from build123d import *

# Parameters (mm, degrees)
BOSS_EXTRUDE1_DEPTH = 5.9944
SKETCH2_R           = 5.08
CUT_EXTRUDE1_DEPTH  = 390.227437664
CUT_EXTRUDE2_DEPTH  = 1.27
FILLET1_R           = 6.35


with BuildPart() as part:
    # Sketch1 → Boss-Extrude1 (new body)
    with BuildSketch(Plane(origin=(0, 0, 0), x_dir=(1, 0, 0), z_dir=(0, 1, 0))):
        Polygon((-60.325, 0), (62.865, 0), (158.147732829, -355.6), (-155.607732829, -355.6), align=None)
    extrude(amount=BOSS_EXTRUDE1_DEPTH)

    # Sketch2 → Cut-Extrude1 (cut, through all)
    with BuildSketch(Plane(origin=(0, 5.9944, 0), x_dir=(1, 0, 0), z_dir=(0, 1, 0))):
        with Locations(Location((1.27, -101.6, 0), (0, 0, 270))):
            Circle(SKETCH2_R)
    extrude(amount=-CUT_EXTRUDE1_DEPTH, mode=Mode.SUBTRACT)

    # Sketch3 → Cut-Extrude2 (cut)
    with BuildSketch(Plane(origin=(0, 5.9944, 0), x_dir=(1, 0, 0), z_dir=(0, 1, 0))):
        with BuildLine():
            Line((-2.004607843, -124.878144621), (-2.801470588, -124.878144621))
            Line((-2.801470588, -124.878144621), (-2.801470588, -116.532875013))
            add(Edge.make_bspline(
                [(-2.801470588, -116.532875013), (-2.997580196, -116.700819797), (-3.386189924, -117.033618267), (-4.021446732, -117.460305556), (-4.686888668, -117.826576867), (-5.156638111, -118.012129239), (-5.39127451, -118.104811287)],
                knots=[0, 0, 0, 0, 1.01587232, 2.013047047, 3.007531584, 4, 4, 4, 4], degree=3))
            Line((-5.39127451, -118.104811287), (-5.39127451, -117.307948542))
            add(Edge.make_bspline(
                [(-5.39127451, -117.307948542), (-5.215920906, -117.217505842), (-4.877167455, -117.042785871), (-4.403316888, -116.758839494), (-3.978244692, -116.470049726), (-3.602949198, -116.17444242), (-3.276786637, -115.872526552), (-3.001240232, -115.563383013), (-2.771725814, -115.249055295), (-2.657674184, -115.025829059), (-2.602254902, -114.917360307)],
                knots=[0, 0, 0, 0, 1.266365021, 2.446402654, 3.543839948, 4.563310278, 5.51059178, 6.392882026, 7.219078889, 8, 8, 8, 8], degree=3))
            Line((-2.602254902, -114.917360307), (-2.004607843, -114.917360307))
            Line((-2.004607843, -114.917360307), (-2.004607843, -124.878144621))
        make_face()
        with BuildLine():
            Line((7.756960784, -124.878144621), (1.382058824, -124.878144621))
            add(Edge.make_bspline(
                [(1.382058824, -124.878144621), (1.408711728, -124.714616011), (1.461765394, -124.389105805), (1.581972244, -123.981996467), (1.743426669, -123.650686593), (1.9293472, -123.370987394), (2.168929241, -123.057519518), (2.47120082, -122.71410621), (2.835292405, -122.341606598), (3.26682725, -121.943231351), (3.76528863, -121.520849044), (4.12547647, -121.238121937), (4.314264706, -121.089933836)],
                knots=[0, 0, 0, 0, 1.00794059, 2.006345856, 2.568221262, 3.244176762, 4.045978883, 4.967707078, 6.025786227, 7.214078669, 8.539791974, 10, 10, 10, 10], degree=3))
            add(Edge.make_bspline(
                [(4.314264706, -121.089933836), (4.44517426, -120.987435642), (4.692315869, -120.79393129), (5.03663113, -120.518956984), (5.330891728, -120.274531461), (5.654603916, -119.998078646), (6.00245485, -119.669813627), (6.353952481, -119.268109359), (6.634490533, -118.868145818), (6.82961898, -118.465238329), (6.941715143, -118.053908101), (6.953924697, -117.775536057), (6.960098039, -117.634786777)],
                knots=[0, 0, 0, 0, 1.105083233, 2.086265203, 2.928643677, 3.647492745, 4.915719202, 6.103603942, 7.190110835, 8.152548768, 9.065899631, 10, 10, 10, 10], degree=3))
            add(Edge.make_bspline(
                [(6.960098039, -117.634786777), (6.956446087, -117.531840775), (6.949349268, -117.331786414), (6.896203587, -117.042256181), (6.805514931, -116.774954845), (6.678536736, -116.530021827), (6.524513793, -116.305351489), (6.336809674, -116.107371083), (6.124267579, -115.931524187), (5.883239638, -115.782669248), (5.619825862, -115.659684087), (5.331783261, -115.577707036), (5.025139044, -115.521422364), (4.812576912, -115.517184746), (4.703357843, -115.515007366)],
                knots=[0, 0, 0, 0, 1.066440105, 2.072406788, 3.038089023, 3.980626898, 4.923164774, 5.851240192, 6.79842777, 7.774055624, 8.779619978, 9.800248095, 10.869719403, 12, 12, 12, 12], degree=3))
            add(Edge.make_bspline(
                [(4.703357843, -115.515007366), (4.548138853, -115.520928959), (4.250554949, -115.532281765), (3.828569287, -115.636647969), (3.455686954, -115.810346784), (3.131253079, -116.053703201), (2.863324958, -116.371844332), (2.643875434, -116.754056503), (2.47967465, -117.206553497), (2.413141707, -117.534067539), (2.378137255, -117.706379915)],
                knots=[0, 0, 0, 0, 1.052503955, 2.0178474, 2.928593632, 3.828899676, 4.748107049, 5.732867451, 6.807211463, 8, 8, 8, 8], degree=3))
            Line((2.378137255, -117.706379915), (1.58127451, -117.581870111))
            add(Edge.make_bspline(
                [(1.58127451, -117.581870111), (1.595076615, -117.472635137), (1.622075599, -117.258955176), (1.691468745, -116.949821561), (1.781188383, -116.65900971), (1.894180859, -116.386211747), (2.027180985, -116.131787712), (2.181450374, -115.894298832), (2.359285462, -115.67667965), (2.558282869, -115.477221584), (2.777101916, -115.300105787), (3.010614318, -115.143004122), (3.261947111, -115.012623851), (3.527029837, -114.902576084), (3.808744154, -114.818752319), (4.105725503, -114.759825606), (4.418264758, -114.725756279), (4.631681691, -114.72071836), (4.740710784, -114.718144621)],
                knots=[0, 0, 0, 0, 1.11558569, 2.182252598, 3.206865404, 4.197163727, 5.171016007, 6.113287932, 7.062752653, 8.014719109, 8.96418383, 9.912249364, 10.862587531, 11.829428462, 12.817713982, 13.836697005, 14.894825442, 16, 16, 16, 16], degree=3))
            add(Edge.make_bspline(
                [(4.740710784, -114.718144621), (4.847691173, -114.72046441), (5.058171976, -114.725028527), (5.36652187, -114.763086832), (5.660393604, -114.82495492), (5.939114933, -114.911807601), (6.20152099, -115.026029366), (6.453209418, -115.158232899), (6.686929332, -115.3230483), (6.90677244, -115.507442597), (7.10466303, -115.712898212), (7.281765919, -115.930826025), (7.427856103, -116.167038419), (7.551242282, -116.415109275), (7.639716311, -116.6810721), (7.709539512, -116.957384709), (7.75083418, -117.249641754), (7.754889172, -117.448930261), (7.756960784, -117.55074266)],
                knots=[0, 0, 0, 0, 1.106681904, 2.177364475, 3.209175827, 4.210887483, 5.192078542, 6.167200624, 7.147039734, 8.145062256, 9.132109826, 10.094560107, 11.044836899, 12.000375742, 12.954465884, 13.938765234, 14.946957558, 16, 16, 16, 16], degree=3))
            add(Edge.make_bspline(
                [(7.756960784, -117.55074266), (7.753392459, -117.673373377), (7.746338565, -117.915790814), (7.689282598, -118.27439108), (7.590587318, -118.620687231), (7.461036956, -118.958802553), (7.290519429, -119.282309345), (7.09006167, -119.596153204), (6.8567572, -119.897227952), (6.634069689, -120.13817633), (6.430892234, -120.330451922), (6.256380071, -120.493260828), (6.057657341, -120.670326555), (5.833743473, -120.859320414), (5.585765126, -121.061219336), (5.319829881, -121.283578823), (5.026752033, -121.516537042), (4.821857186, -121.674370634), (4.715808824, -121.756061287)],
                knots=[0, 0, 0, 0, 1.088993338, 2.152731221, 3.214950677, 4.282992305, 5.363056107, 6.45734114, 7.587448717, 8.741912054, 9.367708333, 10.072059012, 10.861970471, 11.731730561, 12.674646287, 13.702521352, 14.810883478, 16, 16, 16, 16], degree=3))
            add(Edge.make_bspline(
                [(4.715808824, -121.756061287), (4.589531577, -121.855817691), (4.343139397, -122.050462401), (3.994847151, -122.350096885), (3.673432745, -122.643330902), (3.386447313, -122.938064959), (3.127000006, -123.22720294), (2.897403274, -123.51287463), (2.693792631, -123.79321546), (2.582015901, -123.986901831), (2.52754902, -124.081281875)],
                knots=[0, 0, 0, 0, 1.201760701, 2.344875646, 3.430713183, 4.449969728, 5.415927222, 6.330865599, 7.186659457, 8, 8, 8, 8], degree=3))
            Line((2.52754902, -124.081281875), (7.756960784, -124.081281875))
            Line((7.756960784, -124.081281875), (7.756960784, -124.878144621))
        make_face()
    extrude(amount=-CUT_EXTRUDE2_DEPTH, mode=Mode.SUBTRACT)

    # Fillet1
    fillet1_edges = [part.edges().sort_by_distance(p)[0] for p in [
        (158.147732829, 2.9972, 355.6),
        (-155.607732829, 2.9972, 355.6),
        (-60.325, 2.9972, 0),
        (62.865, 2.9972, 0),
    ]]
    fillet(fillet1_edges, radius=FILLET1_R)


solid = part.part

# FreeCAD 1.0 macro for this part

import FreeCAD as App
import Part
import Sketcher
from FreeCAD import Vector
Q = App.Units.Quantity


def edges_at(feature, points):
    """Names of the edges that pass closest to the given points."""
    edges = feature.Shape.Edges
    near = lambda p: min(range(len(edges)), key=lambda i: edges[i].distToShape(Part.Vertex(*p))[0])
    return sorted({f"Edge{near(p) + 1}" for p in points})

doc = App.newDocument("Part")
body = doc.addObject("PartDesign::Body", "Body")

sketch1 = doc.addObject("Sketcher::SketchObject", "Sketch")
body.addObject(sketch1)
sketch1.AttachmentSupport = (doc.XZ_Plane, [""])
sketch1.MapMode = "FlatFace"
sketch1.addGeometry([
    Part.LineSegment(Vector(62.865, 0, 0), Vector(-60.325, 0, 0)),
    Part.LineSegment(Vector(-60.325, 0, 0), Vector(-155.607733, 355.6, 0)),
    Part.LineSegment(Vector(-155.607733, 355.6, 0), Vector(158.147733, 355.6, 0)),
    Part.LineSegment(Vector(158.147733, 355.6, 0), Vector(62.865, 0, 0)),
], False)
sketch1.addConstraint([
    Sketcher.Constraint("Coincident", 0, 2, 1, 1),
    Sketcher.Constraint("Coincident", 1, 2, 2, 1),
    Sketcher.Constraint("Coincident", 2, 2, 3, 1),
    Sketcher.Constraint("Coincident", 3, 2, 0, 1),
    Sketcher.Constraint("Horizontal", 0),
    Sketcher.Constraint("Horizontal", 2),
    Sketcher.Constraint("PointOnObject", 0, 2, -1),
    Sketcher.Constraint("Equal", 1, 3),
    Sketcher.Constraint("DistanceY", -1, 1, 1, 2, Q("14 in")),
    Sketcher.Constraint("Angle", 1, Q("105 deg")),
    Sketcher.Constraint("DistanceX", 0, 2, 0, 1, Q("4.85 in")),
    Sketcher.Constraint("DistanceX", 0, 2, -1, 1, Q("2.375 in")),
])
pad1 = doc.addObject("PartDesign::Pad", "Pad")
body.addObject(pad1)
pad1.Profile = sketch1
pad1.Length = Q("0.236 in")
pad1.Reversed = True

sketch2 = doc.addObject("Sketcher::SketchObject", "Sketch001")
body.addObject(sketch2)
sketch2.AttachmentSupport = (doc.XZ_Plane, [""])
sketch2.MapMode = "FlatFace"
sketch2.AttachmentOffset = App.Placement(Vector(0, 0, -0.236 * 25.4), App.Rotation())
sketch2.addGeometry(Part.Circle(Vector(1.27, 101.6, 0), Vector(0, 0, 1), 5.08), False)
sketch2.addConstraint([
    Sketcher.Constraint("Diameter", 0, Q("0.4 in")),
    Sketcher.Constraint("DistanceY", -1, 1, 0, 3, Q("4 in")),
    Sketcher.Constraint("DistanceX", -1, 1, 0, 3, Q("0.05 in")),
])
pocket1 = doc.addObject("PartDesign::Pocket", "Pocket")
body.addObject(pocket1)
pocket1.Profile = sketch2
pocket1.Type = "ThroughAll"
pocket1.Reversed = True

sketch3 = doc.addObject("Sketcher::SketchObject", "Sketch002")
body.addObject(sketch3)
sketch3.AttachmentSupport = (doc.XZ_Plane, [""])
sketch3.MapMode = "FlatFace"
sketch3.AttachmentOffset = App.Placement(Vector(0, 0, -0.236 * 25.4), App.Rotation())
sketch3.addGeometry([
    Part.LineSegment(Vector(-2.801471, 124.878145, 0), Vector(-2.004608, 124.878145, 0)),
    Part.LineSegment(Vector(-2.004608, 124.878145, 0), Vector(-2.004608, 114.91736, 0)),
    Part.LineSegment(Vector(-2.004608, 114.91736, 0), Vector(-2.602255, 114.91736, 0)),
    Part.BSplineCurve([Vector(-5.391275, 117.307949, 0), Vector(-5.215921, 117.217506, 0), Vector(-4.877167, 117.042786, 0), Vector(-4.403317, 116.758839, 0), Vector(-3.978245, 116.47005, 0), Vector(-3.602949, 116.174442, 0), Vector(-3.276787, 115.872527, 0), Vector(-3.00124, 115.563383, 0), Vector(-2.771726, 115.249055, 0), Vector(-2.657674, 115.025829, 0), Vector(-2.602255, 114.91736, 0)], [4, 1, 1, 1, 1, 1, 1, 1, 4], [0, 1.266365021, 2.446402654, 3.543839948, 4.563310278, 5.51059178, 6.392882026, 7.219078889, 8], False, 3, [1, 1, 1, 1, 1, 1, 1, 1, 1, 1, 1], False),
    Part.LineSegment(Vector(-5.391275, 117.307949, 0), Vector(-5.391275, 118.104811, 0)),
    Part.BSplineCurve([Vector(-2.801471, 116.532875, 0), Vector(-2.99758, 116.70082, 0), Vector(-3.38619, 117.033618, 0), Vector(-4.021447, 117.460306, 0), Vector(-4.686889, 117.826577, 0), Vector(-5.156638, 118.012129, 0), Vector(-5.391275, 118.104811, 0)], [4, 1, 1, 1, 4], [0, 1.01587232, 2.013047047, 3.007531584, 4], False, 3, [1, 1, 1, 1, 1, 1, 1], False),
    Part.LineSegment(Vector(-2.801471, 116.532875, 0), Vector(-2.801471, 124.878145, 0)),
    Part.LineSegment(Vector(1.382059, 124.878145, 0), Vector(7.756961, 124.878145, 0)),
    Part.LineSegment(Vector(7.756961, 124.878145, 0), Vector(7.756961, 124.081282, 0)),
    Part.LineSegment(Vector(7.756961, 124.081282, 0), Vector(2.527549, 124.081282, 0)),
    Part.BSplineCurve([Vector(4.715809, 121.756061, 0), Vector(4.589532, 121.855818, 0), Vector(4.343139, 122.050462, 0), Vector(3.994847, 122.350097, 0), Vector(3.673433, 122.643331, 0), Vector(3.386447, 122.938065, 0), Vector(3.127, 123.227203, 0), Vector(2.897403, 123.512875, 0), Vector(2.693793, 123.793215, 0), Vector(2.582016, 123.986902, 0), Vector(2.527549, 124.081282, 0)], [4, 1, 1, 1, 1, 1, 1, 1, 4], [0, 1.201760701, 2.344875646, 3.430713183, 4.449969728, 5.415927222, 6.330865599, 7.186659457, 8], False, 3, [1, 1, 1, 1, 1, 1, 1, 1, 1, 1, 1], False),
    Part.BSplineCurve([Vector(7.756961, 117.550743, 0), Vector(7.753392, 117.673373, 0), Vector(7.746339, 117.915791, 0), Vector(7.689283, 118.274391, 0), Vector(7.590587, 118.620687, 0), Vector(7.461037, 118.958803, 0), Vector(7.290519, 119.282309, 0), Vector(7.090062, 119.596153, 0), Vector(6.856757, 119.897228, 0), Vector(6.63407, 120.138176, 0), Vector(6.430892, 120.330452, 0), Vector(6.25638, 120.493261, 0), Vector(6.057657, 120.670327, 0), Vector(5.833743, 120.85932, 0), Vector(5.585765, 121.061219, 0), Vector(5.31983, 121.283579, 0), Vector(5.026752, 121.516537, 0), Vector(4.821857, 121.674371, 0), Vector(4.715809, 121.756061, 0)], [4, 1, 1, 1, 1, 1, 1, 1, 1, 1, 1, 1, 1, 1, 1, 1, 4], [0, 1.088993338, 2.152731221, 3.214950677, 4.282992305, 5.363056107, 6.45734114, 7.587448717, 8.741912054, 9.367708333, 10.072059012, 10.861970471, 11.731730561, 12.674646287, 13.702521352, 14.810883478, 16], False, 3, [1, 1, 1, 1, 1, 1, 1, 1, 1, 1, 1, 1, 1, 1, 1, 1, 1, 1, 1], False),
    Part.BSplineCurve([Vector(4.740711, 114.718145, 0), Vector(4.847691, 114.720464, 0), Vector(5.058172, 114.725029, 0), Vector(5.366522, 114.763087, 0), Vector(5.660394, 114.824955, 0), Vector(5.939115, 114.911808, 0), Vector(6.201521, 115.026029, 0), Vector(6.453209, 115.158233, 0), Vector(6.686929, 115.323048, 0), Vector(6.906772, 115.507443, 0), Vector(7.104663, 115.712898, 0), Vector(7.281766, 115.930826, 0), Vector(7.427856, 116.167038, 0), Vector(7.551242, 116.415109, 0), Vector(7.639716, 116.681072, 0), Vector(7.70954, 116.957385, 0), Vector(7.750834, 117.249642, 0), Vector(7.754889, 117.44893, 0), Vector(7.756961, 117.550743, 0)], [4, 1, 1, 1, 1, 1, 1, 1, 1, 1, 1, 1, 1, 1, 1, 1, 4], [0, 1.106681904, 2.177364475, 3.209175827, 4.210887483, 5.192078542, 6.167200624, 7.147039734, 8.145062256, 9.132109826, 10.094560107, 11.044836899, 12.000375742, 12.954465884, 13.938765234, 14.946957558, 16], False, 3, [1, 1, 1, 1, 1, 1, 1, 1, 1, 1, 1, 1, 1, 1, 1, 1, 1, 1, 1], False),
    Part.BSplineCurve([Vector(1.581275, 117.58187, 0), Vector(1.595077, 117.472635, 0), Vector(1.622076, 117.258955, 0), Vector(1.691469, 116.949822, 0), Vector(1.781188, 116.65901, 0), Vector(1.894181, 116.386212, 0), Vector(2.027181, 116.131788, 0), Vector(2.18145, 115.894299, 0), Vector(2.359285, 115.67668, 0), Vector(2.558283, 115.477222, 0), Vector(2.777102, 115.300106, 0), Vector(3.010614, 115.143004, 0), Vector(3.261947, 115.012624, 0), Vector(3.52703, 114.902576, 0), Vector(3.808744, 114.818752, 0), Vector(4.105726, 114.759826, 0), Vector(4.418265, 114.725756, 0), Vector(4.631682, 114.720718, 0), Vector(4.740711, 114.718145, 0)], [4, 1, 1, 1, 1, 1, 1, 1, 1, 1, 1, 1, 1, 1, 1, 1, 4], [0, 1.11558569, 2.182252598, 3.206865404, 4.197163727, 5.171016007, 6.113287932, 7.062752653, 8.014719109, 8.96418383, 9.912249364, 10.862587531, 11.829428462, 12.817713982, 13.836697005, 14.894825442, 16], False, 3, [1, 1, 1, 1, 1, 1, 1, 1, 1, 1, 1, 1, 1, 1, 1, 1, 1, 1, 1], False),
    Part.LineSegment(Vector(1.581275, 117.58187, 0), Vector(2.378137, 117.70638, 0)),
    Part.BSplineCurve([Vector(4.703358, 115.515007, 0), Vector(4.548139, 115.520929, 0), Vector(4.250555, 115.532282, 0), Vector(3.828569, 115.636648, 0), Vector(3.455687, 115.810347, 0), Vector(3.131253, 116.053703, 0), Vector(2.863325, 116.371844, 0), Vector(2.643875, 116.754057, 0), Vector(2.479675, 117.206553, 0), Vector(2.413142, 117.534068, 0), Vector(2.378137, 117.70638, 0)], [4, 1, 1, 1, 1, 1, 1, 1, 4], [0, 1.052503955, 2.0178474, 2.928593632, 3.828899676, 4.748107049, 5.732867451, 6.807211463, 8], False, 3, [1, 1, 1, 1, 1, 1, 1, 1, 1, 1, 1], False),
    Part.BSplineCurve([Vector(6.960098, 117.634787, 0), Vector(6.956446, 117.531841, 0), Vector(6.949349, 117.331786, 0), Vector(6.896204, 117.042256, 0), Vector(6.805515, 116.774955, 0), Vector(6.678537, 116.530022, 0), Vector(6.524514, 116.305351, 0), Vector(6.33681, 116.107371, 0), Vector(6.124268, 115.931524, 0), Vector(5.88324, 115.782669, 0), Vector(5.619826, 115.659684, 0), Vector(5.331783, 115.577707, 0), Vector(5.025139, 115.521422, 0), Vector(4.812577, 115.517185, 0), Vector(4.703358, 115.515007, 0)], [4, 1, 1, 1, 1, 1, 1, 1, 1, 1, 1, 1, 4], [0, 1.066440105, 2.072406788, 3.038089023, 3.980626898, 4.923164774, 5.851240192, 6.79842777, 7.774055624, 8.779619978, 9.800248095, 10.869719403, 12], False, 3, [1, 1, 1, 1, 1, 1, 1, 1, 1, 1, 1, 1, 1, 1, 1], False),
    Part.BSplineCurve([Vector(4.314265, 121.089934, 0), Vector(4.445174, 120.987436, 0), Vector(4.692316, 120.793931, 0), Vector(5.036631, 120.518957, 0), Vector(5.330892, 120.274531, 0), Vector(5.654604, 119.998079, 0), Vector(6.002455, 119.669814, 0), Vector(6.353952, 119.268109, 0), Vector(6.634491, 118.868146, 0), Vector(6.829619, 118.465238, 0), Vector(6.941715, 118.053908, 0), Vector(6.953925, 117.775536, 0), Vector(6.960098, 117.634787, 0)], [4, 1, 1, 1, 1, 1, 1, 1, 1, 1, 4], [0, 1.105083233, 2.086265203, 2.928643677, 3.647492745, 4.915719202, 6.103603942, 7.190110835, 8.152548768, 9.065899631, 10], False, 3, [1, 1, 1, 1, 1, 1, 1, 1, 1, 1, 1, 1, 1], False),
    Part.BSplineCurve([Vector(1.382059, 124.878145, 0), Vector(1.408712, 124.714616, 0), Vector(1.461765, 124.389106, 0), Vector(1.581972, 123.981996, 0), Vector(1.743427, 123.650687, 0), Vector(1.929347, 123.370987, 0), Vector(2.168929, 123.05752, 0), Vector(2.471201, 122.714106, 0), Vector(2.835292, 122.341607, 0), Vector(3.266827, 121.943231, 0), Vector(3.765289, 121.520849, 0), Vector(4.125476, 121.238122, 0), Vector(4.314265, 121.089934, 0)], [4, 1, 1, 1, 1, 1, 1, 1, 1, 1, 4], [0, 1.00794059, 2.006345856, 2.568221262, 3.244176762, 4.045978883, 4.967707078, 6.025786227, 7.214078669, 8.539791974, 10], False, 3, [1, 1, 1, 1, 1, 1, 1, 1, 1, 1, 1, 1, 1], False),
], False)
sketch3.addConstraint([
    Sketcher.Constraint("Block", 3),
    Sketcher.Constraint("Block", 5),
    Sketcher.Constraint("Block", 10),
    Sketcher.Constraint("Block", 11),
    Sketcher.Constraint("Block", 12),
    Sketcher.Constraint("Block", 13),
    Sketcher.Constraint("Block", 15),
    Sketcher.Constraint("Block", 16),
    Sketcher.Constraint("Block", 17),
    Sketcher.Constraint("Block", 18),
    Sketcher.Constraint("Coincident", 0, 2, 1, 1),
    Sketcher.Constraint("Coincident", 1, 2, 2, 1),
    Sketcher.Constraint("Coincident", 2, 2, 3, 2),
    Sketcher.Constraint("Coincident", 3, 1, 4, 1),
    Sketcher.Constraint("Coincident", 4, 2, 5, 2),
    Sketcher.Constraint("Coincident", 5, 1, 6, 1),
    Sketcher.Constraint("Coincident", 6, 2, 0, 1),
    Sketcher.Constraint("Coincident", 7, 2, 8, 1),
    Sketcher.Constraint("Coincident", 8, 2, 9, 1),
    Sketcher.Constraint("Coincident", 9, 2, 10, 2),
    Sketcher.Constraint("Coincident", 13, 1, 14, 1),
    Sketcher.Constraint("Coincident", 14, 2, 15, 2),
    Sketcher.Constraint("Coincident", 18, 1, 7, 1),
    Sketcher.Constraint("Horizontal", 0),
    Sketcher.Constraint("Vertical", 1),
    Sketcher.Constraint("Horizontal", 2),
    Sketcher.Constraint("Vertical", 6),
    Sketcher.Constraint("Horizontal", 7),
    Sketcher.Constraint("Vertical", 8),
    Sketcher.Constraint("Horizontal", 9),
    Sketcher.Constraint("DistanceX", 7, 1, 7, 2, Q("6.374902 mm")),
    Sketcher.Constraint("DistanceY", 6, 1, 6, 2, Q("8.34527 mm")),
    Sketcher.Constraint("DistanceX", 0, 1, 0, 2, Q("0.796863 mm")),
])
pocket2 = doc.addObject("PartDesign::Pocket", "Pocket001")
body.addObject(pocket2)
pocket2.Profile = sketch3
pocket2.Length = Q("0.05 in")
pocket2.Reversed = True
doc.recompute()

fillet = doc.addObject("PartDesign::Fillet", "Fillet")
body.addObject(fillet)
fillet.Base = (pocket2, edges_at(pocket2, [
    (158.148, 2.997, 355.6),
    (-155.608, 2.997, 355.6),
    (-60.325, 2.997, 0),
    (62.865, 2.997, 0),
]))
fillet.Radius = Q("0.25 in")

doc.recompute()
